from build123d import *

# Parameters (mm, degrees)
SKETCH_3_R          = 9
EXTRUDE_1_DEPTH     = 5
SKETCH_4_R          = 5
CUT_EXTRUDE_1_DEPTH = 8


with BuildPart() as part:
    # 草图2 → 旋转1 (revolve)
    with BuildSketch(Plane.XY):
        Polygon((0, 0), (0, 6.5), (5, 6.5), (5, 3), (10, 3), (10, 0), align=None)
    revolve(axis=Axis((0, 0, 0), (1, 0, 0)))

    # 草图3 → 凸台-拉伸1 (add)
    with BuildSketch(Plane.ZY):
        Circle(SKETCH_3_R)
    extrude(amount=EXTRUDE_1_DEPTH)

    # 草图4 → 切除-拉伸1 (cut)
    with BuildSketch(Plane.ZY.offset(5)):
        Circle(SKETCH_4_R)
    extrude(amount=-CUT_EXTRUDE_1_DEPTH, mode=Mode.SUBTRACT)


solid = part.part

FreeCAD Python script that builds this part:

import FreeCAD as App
import Part
import Sketcher

doc = App.newDocument("Part")
body = doc.addObject("PartDesign::Body", "Body")

# Sketch on XY plane
sketch1 = body.newObject("Sketcher::SketchObject", "Sketch")
sketch1.AttachmentSupport = (doc.getObject("XY_Plane"), [""])
sketch1.MapMode = "FlatFace"
sketch1.addGeometry(Part.LineSegment(App.Vector(0, 6.5, 0), App.Vector(0, 0, 0)), False)
sketch1.addGeometry(Part.LineSegment(App.Vector(0, 0, 0), App.Vector(10, 0, 0)), False)
sketch1.addGeometry(Part.LineSegment(App.Vector(10, 0, 0), App.Vector(10, 3, 0)), False)
sketch1.addGeometry(Part.LineSegment(App.Vector(10, 3, 0), App.Vector(5, 3, 0)), False)
sketch1.addGeometry(Part.LineSegment(App.Vector(5, 3, 0), App.Vector(5, 6.5, 0)), False)
sketch1.addGeometry(Part.LineSegment(App.Vector(5, 6.5, 0), App.Vector(0, 6.5, 0)), False)
sketch1.addConstraint(Sketcher.Constraint("Coincident", 0, 2, 1, 1))
sketch1.addConstraint(Sketcher.Constraint("Coincident", 1, 2, 2, 1))
sketch1.addConstraint(Sketcher.Constraint("Coincident", 2, 2, 3, 1))
sketch1.addConstraint(Sketcher.Constraint("Coincident", 3, 2, 4, 1))
sketch1.addConstraint(Sketcher.Constraint("Coincident", 4, 2, 5, 1))
sketch1.addConstraint(Sketcher.Constraint("Coincident", 5, 2, 0, 1))
sketch1.addConstraint(Sketcher.Constraint("Vertical", 0))
sketch1.addConstraint(Sketcher.Constraint("Horizontal", 1))
sketch1.addConstraint(Sketcher.Constraint("Vertical", 2))
sketch1.addConstraint(Sketcher.Constraint("Horizontal", 3))
sketch1.addConstraint(Sketcher.Constraint("Vertical", 4))
sketch1.addConstraint(Sketcher.Constraint("Horizontal", 5))
sketch1.addConstraint(Sketcher.Constraint("Coincident", 0, 2, -1, 1))
sketch1.addConstraint(Sketcher.Constraint("Equal", 3, 5))
sketch1.addConstraint(Sketcher.Constraint("DistanceX", 1, 1, 1, 2, 10.0))
sketch1.addConstraint(Sketcher.Constraint("DistanceY", 2, 1, 2, 2, 3.0))
sketch1.addConstraint(Sketcher.Constraint("DistanceY", 0, 2, 0, 1, 6.5))
revolution = body.newObject("PartDesign::Revolution", "Revolution")
revolution.Profile = sketch1
revolution.ReferenceAxis = (sketch1, ["H_Axis"])
revolution.Angle = 360

# Sketch on YZ plane
sketch2 = body.newObject("Sketcher::SketchObject", "Sketch001")
sketch2.AttachmentSupport = (doc.getObject("YZ_Plane"), [""])
sketch2.MapMode = "FlatFace"
sketch2.addGeometry(Part.Circle(App.Vector(0, 0, 0), App.Vector(0, 0, 1), 9), False)
sketch2.addConstraint(Sketcher.Constraint("Coincident", 0, 3, -1, 1))
sketch2.addConstraint(Sketcher.Constraint("Diameter", 0, 18.0))
pad1 = body.newObject("PartDesign::Pad", "Pad")
pad1.Profile = sketch2
pad1.Length = 5
pad1.Reversed = True

# Sketch on YZ plane
sketch3 = body.newObject("Sketcher::SketchObject", "Sketch002")
sketch3.AttachmentSupport = (doc.getObject("YZ_Plane"), [""])
sketch3.MapMode = "FlatFace"
sketch3.AttachmentOffset = App.Placement(App.Vector(0, 0, -5), App.Rotation())
sketch3.addGeometry(Part.Circle(App.Vector(0, 0, 0), App.Vector(0, 0, 1), 5), False)
sketch3.addConstraint(Sketcher.Constraint("Coincident", 0, 3, -1, 1))
sketch3.addConstraint(Sketcher.Constraint("Diameter", 0, 10.0))
pocket1 = body.newObject("PartDesign::Pocket", "Pocket")
pocket1.Profile = sketch3
pocket1.Length = 8
pocket1.Reversed = True

doc.recompute()
